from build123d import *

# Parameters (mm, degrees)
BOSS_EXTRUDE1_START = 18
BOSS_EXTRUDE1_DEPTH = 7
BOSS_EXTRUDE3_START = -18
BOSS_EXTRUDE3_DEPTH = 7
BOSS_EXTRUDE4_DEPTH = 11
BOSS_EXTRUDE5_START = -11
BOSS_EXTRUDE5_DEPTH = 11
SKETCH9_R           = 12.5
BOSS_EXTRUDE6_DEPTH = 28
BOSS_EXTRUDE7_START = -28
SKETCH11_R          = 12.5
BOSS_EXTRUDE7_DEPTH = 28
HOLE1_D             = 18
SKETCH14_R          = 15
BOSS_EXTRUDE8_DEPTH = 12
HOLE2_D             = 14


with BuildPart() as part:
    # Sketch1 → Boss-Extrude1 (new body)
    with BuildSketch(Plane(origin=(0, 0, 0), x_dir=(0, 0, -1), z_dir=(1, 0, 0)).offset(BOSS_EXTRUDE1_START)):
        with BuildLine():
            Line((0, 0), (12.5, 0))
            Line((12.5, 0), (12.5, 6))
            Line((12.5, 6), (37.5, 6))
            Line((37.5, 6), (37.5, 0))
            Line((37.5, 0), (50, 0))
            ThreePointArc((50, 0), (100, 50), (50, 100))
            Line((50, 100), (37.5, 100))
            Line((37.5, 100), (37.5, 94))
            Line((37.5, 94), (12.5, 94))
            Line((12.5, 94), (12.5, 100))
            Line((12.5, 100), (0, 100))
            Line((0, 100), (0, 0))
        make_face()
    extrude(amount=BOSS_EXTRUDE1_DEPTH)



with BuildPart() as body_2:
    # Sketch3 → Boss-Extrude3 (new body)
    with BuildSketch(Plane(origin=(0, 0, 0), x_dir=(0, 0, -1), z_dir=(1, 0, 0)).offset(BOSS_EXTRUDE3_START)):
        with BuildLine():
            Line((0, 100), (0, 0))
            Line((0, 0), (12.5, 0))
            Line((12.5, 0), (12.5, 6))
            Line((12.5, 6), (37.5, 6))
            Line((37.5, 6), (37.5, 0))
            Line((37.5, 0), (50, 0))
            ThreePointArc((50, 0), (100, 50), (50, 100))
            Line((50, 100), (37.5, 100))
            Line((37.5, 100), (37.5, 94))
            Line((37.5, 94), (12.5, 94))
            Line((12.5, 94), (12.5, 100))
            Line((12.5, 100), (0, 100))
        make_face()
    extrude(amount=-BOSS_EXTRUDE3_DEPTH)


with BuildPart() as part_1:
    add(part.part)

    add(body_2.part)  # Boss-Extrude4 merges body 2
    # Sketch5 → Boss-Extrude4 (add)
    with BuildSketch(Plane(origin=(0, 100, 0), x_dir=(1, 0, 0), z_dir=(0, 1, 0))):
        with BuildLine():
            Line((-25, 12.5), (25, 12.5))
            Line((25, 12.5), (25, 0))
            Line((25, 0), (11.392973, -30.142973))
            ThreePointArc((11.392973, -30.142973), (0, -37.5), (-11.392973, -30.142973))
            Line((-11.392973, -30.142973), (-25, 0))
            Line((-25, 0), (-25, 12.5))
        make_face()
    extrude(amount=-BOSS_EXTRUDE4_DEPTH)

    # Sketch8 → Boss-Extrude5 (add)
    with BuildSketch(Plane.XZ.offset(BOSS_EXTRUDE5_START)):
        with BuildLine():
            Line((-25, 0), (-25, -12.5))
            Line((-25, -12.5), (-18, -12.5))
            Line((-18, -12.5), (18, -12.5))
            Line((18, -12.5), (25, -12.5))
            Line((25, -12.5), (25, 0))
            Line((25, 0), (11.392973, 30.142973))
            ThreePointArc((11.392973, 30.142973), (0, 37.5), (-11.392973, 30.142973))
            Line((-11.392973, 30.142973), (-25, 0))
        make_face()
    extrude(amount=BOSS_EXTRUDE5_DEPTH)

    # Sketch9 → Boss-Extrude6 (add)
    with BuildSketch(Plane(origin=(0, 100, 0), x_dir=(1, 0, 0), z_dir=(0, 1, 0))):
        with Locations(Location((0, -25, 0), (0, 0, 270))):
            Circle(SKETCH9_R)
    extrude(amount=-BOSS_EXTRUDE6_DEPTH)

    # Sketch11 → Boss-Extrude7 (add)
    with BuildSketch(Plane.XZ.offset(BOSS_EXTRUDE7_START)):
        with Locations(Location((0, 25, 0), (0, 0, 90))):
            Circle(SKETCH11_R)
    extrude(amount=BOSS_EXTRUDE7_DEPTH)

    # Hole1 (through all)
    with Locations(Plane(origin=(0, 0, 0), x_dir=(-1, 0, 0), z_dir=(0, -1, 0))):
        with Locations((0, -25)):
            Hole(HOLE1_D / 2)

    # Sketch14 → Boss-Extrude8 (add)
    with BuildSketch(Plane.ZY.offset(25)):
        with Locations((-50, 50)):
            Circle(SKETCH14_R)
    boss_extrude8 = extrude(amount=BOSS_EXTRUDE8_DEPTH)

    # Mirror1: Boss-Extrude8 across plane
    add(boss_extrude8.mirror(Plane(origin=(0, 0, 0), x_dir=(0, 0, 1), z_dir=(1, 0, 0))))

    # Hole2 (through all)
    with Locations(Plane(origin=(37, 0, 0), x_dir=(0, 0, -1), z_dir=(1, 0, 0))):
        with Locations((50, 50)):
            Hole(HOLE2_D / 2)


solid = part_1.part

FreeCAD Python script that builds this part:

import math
import FreeCAD as App
import Part
import Sketcher
Q = App.Units.Quantity

doc = App.newDocument("Part")
params = doc.addObject("Spreadsheet::Sheet", "Params")
for row, (alias, value) in enumerate([
    ("sketch1_radius", "50 mm"),
    ("sketch1_width", "6 mm"),
    ("sketch1_height", "25 mm"),
    ("sketch1_height2", "12.5 mm"),
    ("pad1_length", "7 mm"),
    ("sketch2_radius", "50 mm"),
    ("sketch2_width", "6 mm"),
    ("sketch2_height", "25 mm"),
    ("sketch2_height2", "12.5 mm"),
    ("pad2_length", "7 mm"),
    ("sketch3_radius", "12.5 mm"),
    ("sketch3_width", "50 mm"),
    ("sketch3_height", "12.5 mm"),
    ("pad3_length", "11 mm"),
    ("sketch4_radius", "12.5 mm"),
    ("sketch4_width", "50 mm"),
    ("sketch4_height", "12.5 mm"),
    ("pad4_length", "11 mm"),
    ("sketch5_diameter", "25 mm"),
    ("pad5_length", "28 mm"),
    ("sketch6_diameter", "25 mm"),
    ("pad6_length", "28 mm"),
    ("sketch7_diameter", "18 mm"),
    ("hole_diameter", "18 mm"),
    ("sketch8_diameter", "30 mm"),
    ("pad7_length", "12 mm"),
    ("sketch9_diameter", "14 mm"),
    ("hole2_diameter", "14 mm"),
], start=1):
    params.set(f"A{row}", alias)
    params.set(f"B{row}", "=" + value)
    params.setAlias(f"B{row}", alias)

body = doc.addObject("PartDesign::Body", "Body")

# Sketch on YZ plane
sketch1 = body.newObject("Sketcher::SketchObject", "Sketch")
sketch1.AttachmentSupport = (doc.getObject("YZ_Plane"), [""])
sketch1.MapMode = "FlatFace"
sketch1.AttachmentOffset = App.Placement(App.Vector(0, 0, 18), App.Rotation())
sketch1.addGeometry([
    Part.LineSegment(App.Vector(0, 0, 0), App.Vector(0, -12, 0)),  # 0
    Part.LineSegment(App.Vector(0, -12, 0), App.Vector(6, -12, 0)),  # 1
    Part.LineSegment(App.Vector(6, -12, 0), App.Vector(6, -38, 0)),  # 2
    Part.LineSegment(App.Vector(6, -38, 0), App.Vector(0, -38, 0)),  # 3
    Part.LineSegment(App.Vector(0, -38, 0), App.Vector(0, -50, 0)),  # 4
    Part.ArcOfCircle(Part.Circle(App.Vector(50, -50, 0), App.Vector(0, 0, 1), 50), math.radians(180), math.radians(360)),  # 5
    Part.LineSegment(App.Vector(100, -50, 0), App.Vector(100, -38, 0)),  # 6
    Part.LineSegment(App.Vector(100, -38, 0), App.Vector(94, -38, 0)),  # 7
    Part.LineSegment(App.Vector(94, -38, 0), App.Vector(94, -12, 0)),  # 8
    Part.LineSegment(App.Vector(94, -12, 0), App.Vector(100, -12, 0)),  # 9
    Part.LineSegment(App.Vector(100, -12, 0), App.Vector(100, 0, 0)),  # 10
    Part.LineSegment(App.Vector(100, 0, 0), App.Vector(0, 0, 0)),  # 11
], False)
sketch1.addConstraint([
    Sketcher.Constraint("Coincident", 0, 2, 1, 1),
    Sketcher.Constraint("Coincident", 1, 2, 2, 1),
    Sketcher.Constraint("Coincident", 2, 2, 3, 1),
    Sketcher.Constraint("Coincident", 3, 2, 4, 1),
    Sketcher.Constraint("Tangent", 4, 2, 5, 1),
    Sketcher.Constraint("Tangent", 5, 2, 6, 1),
    Sketcher.Constraint("Coincident", 6, 2, 7, 1),
    Sketcher.Constraint("Coincident", 7, 2, 8, 1),
    Sketcher.Constraint("Coincident", 8, 2, 9, 1),
    Sketcher.Constraint("Coincident", 9, 2, 10, 1),
    Sketcher.Constraint("Coincident", 10, 2, 11, 1),
    Sketcher.Constraint("Coincident", 11, 2, 0, 1),
    Sketcher.Constraint("Vertical", 0),
    Sketcher.Constraint("Horizontal", 1),
    Sketcher.Constraint("Vertical", 2),
    Sketcher.Constraint("Horizontal", 3),
    Sketcher.Constraint("Vertical", 4),
    Sketcher.Constraint("Vertical", 6),
    Sketcher.Constraint("Horizontal", 7),
    Sketcher.Constraint("Vertical", 8),
    Sketcher.Constraint("Horizontal", 9),
    Sketcher.Constraint("Vertical", 10),
    Sketcher.Constraint("Horizontal", 11),
    Sketcher.Constraint("Coincident", 11, 2, -1, 1),
    Sketcher.Constraint("PointOnObject", 3, 2, -2),
    Sketcher.Constraint("Horizontal", 3, 2, 6, 2),
    Sketcher.Constraint("Horizontal", 1, 2, 8, 2),
    Sketcher.Constraint("Vertical", 6, 2, 9, 2),
    Sketcher.Constraint("Equal", 3, 7),
    Sketcher.Constraint("Equal", 0, 4),
    Sketcher.Constraint("Radius", 5, Q("50 mm")),
    Sketcher.Constraint("DistanceX", 1, 1, 1, 2, Q("6 mm")),
    Sketcher.Constraint("DistanceY", 2, 2, 2, 1, Q("25 mm")),
    Sketcher.Constraint("DistanceY", 0, 2, 0, 1, Q("12.5 mm")),
])
sketch1.setExpression("Constraints[30]", "Params.sketch1_radius")
sketch1.setExpression("Constraints[31]", "Params.sketch1_width")
sketch1.setExpression("Constraints[32]", "Params.sketch1_height")
sketch1.setExpression("Constraints[33]", "Params.sketch1_height2")
pad1 = body.newObject("PartDesign::Pad", "Pad")
pad1.Profile = sketch1
pad1.setExpression("Length", "Params.pad1_length")
body2 = doc.addObject("PartDesign::Body", "Body001")

# Sketch on YZ plane
sketch2 = body2.newObject("Sketcher::SketchObject", "Sketch001")
sketch2.AttachmentSupport = (doc.getObject("YZ_Plane001"), [""])
sketch2.MapMode = "FlatFace"
sketch2.AttachmentOffset = App.Placement(App.Vector(0, 0, -18), App.Rotation())
sketch2.addGeometry([
    Part.LineSegment(App.Vector(100, 0, 0), App.Vector(0, 0, 0)),  # 0
    Part.LineSegment(App.Vector(0, 0, 0), App.Vector(0, -12, 0)),  # 1
    Part.LineSegment(App.Vector(0, -12, 0), App.Vector(6, -12, 0)),  # 2
    Part.LineSegment(App.Vector(6, -12, 0), App.Vector(6, -38, 0)),  # 3
    Part.LineSegment(App.Vector(6, -38, 0), App.Vector(0, -38, 0)),  # 4
    Part.LineSegment(App.Vector(0, -38, 0), App.Vector(0, -50, 0)),  # 5
    Part.ArcOfCircle(Part.Circle(App.Vector(50, -50, 0), App.Vector(0, 0, 1), 50), math.radians(180), math.radians(360)),  # 6
    Part.LineSegment(App.Vector(100, -50, 0), App.Vector(100, -38, 0)),  # 7
    Part.LineSegment(App.Vector(100, -38, 0), App.Vector(94, -38, 0)),  # 8
    Part.LineSegment(App.Vector(94, -38, 0), App.Vector(94, -12, 0)),  # 9
    Part.LineSegment(App.Vector(94, -12, 0), App.Vector(100, -12, 0)),  # 10
    Part.LineSegment(App.Vector(100, -12, 0), App.Vector(100, 0, 0)),  # 11
], False)
sketch2.addConstraint([
    Sketcher.Constraint("Coincident", 0, 2, 1, 1),
    Sketcher.Constraint("Coincident", 1, 2, 2, 1),
    Sketcher.Constraint("Coincident", 2, 2, 3, 1),
    Sketcher.Constraint("Coincident", 3, 2, 4, 1),
    Sketcher.Constraint("Coincident", 4, 2, 5, 1),
    Sketcher.Constraint("Tangent", 5, 2, 6, 1),
    Sketcher.Constraint("Tangent", 6, 2, 7, 1),
    Sketcher.Constraint("Coincident", 7, 2, 8, 1),
    Sketcher.Constraint("Coincident", 8, 2, 9, 1),
    Sketcher.Constraint("Coincident", 9, 2, 10, 1),
    Sketcher.Constraint("Coincident", 10, 2, 11, 1),
    Sketcher.Constraint("Coincident", 11, 2, 0, 1),
    Sketcher.Constraint("Horizontal", 0),
    Sketcher.Constraint("Vertical", 1),
    Sketcher.Constraint("Horizontal", 2),
    Sketcher.Constraint("Vertical", 3),
    Sketcher.Constraint("Horizontal", 4),
    Sketcher.Constraint("Vertical", 5),
    Sketcher.Constraint("Vertical", 7),
    Sketcher.Constraint("Horizontal", 8),
    Sketcher.Constraint("Vertical", 9),
    Sketcher.Constraint("Horizontal", 10),
    Sketcher.Constraint("Vertical", 11),
    Sketcher.Constraint("Coincident", 0, 2, -1, 1),
    Sketcher.Constraint("PointOnObject", 4, 2, -2),
    Sketcher.Constraint("Horizontal", 4, 2, 7, 2),
    Sketcher.Constraint("Horizontal", 2, 2, 9, 2),
    Sketcher.Constraint("Vertical", 7, 2, 10, 2),
    Sketcher.Constraint("Equal", 4, 8),
    Sketcher.Constraint("Equal", 1, 5),
    Sketcher.Constraint("Radius", 6, Q("50 mm")),
    Sketcher.Constraint("DistanceX", 2, 1, 2, 2, Q("6 mm")),
    Sketcher.Constraint("DistanceY", 3, 2, 3, 1, Q("25 mm")),
    Sketcher.Constraint("DistanceY", 1, 2, 1, 1, Q("12.5 mm")),
])
sketch2.setExpression("Constraints[30]", "Params.sketch2_radius")
sketch2.setExpression("Constraints[31]", "Params.sketch2_width")
sketch2.setExpression("Constraints[32]", "Params.sketch2_height")
sketch2.setExpression("Constraints[33]", "Params.sketch2_height2")
pad2 = body2.newObject("PartDesign::Pad", "Pad001")
pad2.Profile = sketch2
pad2.setExpression("Length", "Params.pad2_length")
pad2.Reversed = True
body.AllowCompound = True
doc.recompute()

boolean = body.newObject("PartDesign::Boolean", "Boolean")
boolean.Type = "Fuse"
boolean.addObjects([body2])

# Sketch on XZ plane
sketch3 = body.newObject("Sketcher::SketchObject", "Sketch002")
sketch3.AttachmentSupport = (doc.getObject("XZ_Plane"), [""])
sketch3.MapMode = "FlatFace"
sketch3.AttachmentOffset = App.Placement(App.Vector(0, 0, -100), App.Rotation())
sketch3.addGeometry([
    Part.LineSegment(App.Vector(25, -12, 0), App.Vector(-25, -12, 0)),  # 0
    Part.LineSegment(App.Vector(-25, -12, 0), App.Vector(-25, 0, 0)),  # 1
    Part.LineSegment(App.Vector(-25, 0, 0), App.Vector(-11, 30, 0)),  # 2
    Part.ArcOfCircle(Part.Circle(App.Vector(0, 25, 0), App.Vector(0, 0, 1), 13), math.radians(24), math.radians(156)),  # 3
    Part.LineSegment(App.Vector(11, 30, 0), App.Vector(25, 0, 0)),  # 4
    Part.LineSegment(App.Vector(25, 0, 0), App.Vector(25, -12, 0)),  # 5
], False)
sketch3.addConstraint([
    Sketcher.Constraint("Coincident", 0, 2, 1, 1),
    Sketcher.Constraint("Coincident", 1, 2, 2, 1),
    Sketcher.Constraint("Tangent", 2, 2, 3, 2),
    Sketcher.Constraint("Tangent", 3, 1, 4, 1),
    Sketcher.Constraint("Coincident", 4, 2, 5, 1),
    Sketcher.Constraint("Coincident", 5, 2, 0, 1),
    Sketcher.Constraint("Horizontal", 0),
    Sketcher.Constraint("Vertical", 1),
    Sketcher.Constraint("Vertical", 5),
    Sketcher.Constraint("Symmetric", 1, 2, 4, 2, -1, 1),
    Sketcher.Constraint("Symmetric", 2, 2, 3, 1, -2),
    Sketcher.Constraint("Radius", 3, Q("12.5 mm")),
    Sketcher.Constraint("DistanceX", 0, 2, 0, 1, Q("50 mm")),
    Sketcher.Constraint("DistanceY", 1, 1, 1, 2, Q("12.5 mm")),
    Sketcher.Constraint("DistanceY", -1, 1, 3, 3, Q("25 mm")),
])
sketch3.setExpression("Constraints[11]", "Params.sketch3_radius")
sketch3.setExpression("Constraints[12]", "Params.sketch3_width")
sketch3.setExpression("Constraints[13]", "Params.sketch3_height")
pad3 = body.newObject("PartDesign::Pad", "Pad002")
pad3.Profile = sketch3
pad3.setExpression("Length", "Params.pad3_length")

# Sketch on XZ plane
sketch4 = body.newObject("Sketcher::SketchObject", "Sketch003")
sketch4.AttachmentSupport = (doc.getObject("XZ_Plane"), [""])
sketch4.MapMode = "FlatFace"
sketch4.AttachmentOffset = App.Placement(App.Vector(0, 0, -11), App.Rotation())
sketch4.addGeometry([
    Part.LineSegment(App.Vector(-25, 0, 0), App.Vector(-25, -12, 0)),  # 0
    Part.LineSegment(App.Vector(-25, -12, 0), App.Vector(25, -12, 0)),  # 1
    Part.LineSegment(App.Vector(25, -12, 0), App.Vector(25, 0, 0)),  # 2
    Part.LineSegment(App.Vector(25, 0, 0), App.Vector(11, 30, 0)),  # 3
    Part.ArcOfCircle(Part.Circle(App.Vector(0, 25, 0), App.Vector(0, 0, 1), 13), math.radians(24), math.radians(156)),  # 4
    Part.LineSegment(App.Vector(-11, 30, 0), App.Vector(-25, 0, 0)),  # 5
], False)
sketch4.addConstraint([
    Sketcher.Constraint("Coincident", 0, 2, 1, 1),
    Sketcher.Constraint("Coincident", 1, 2, 2, 1),
    Sketcher.Constraint("Coincident", 2, 2, 3, 1),
    Sketcher.Constraint("Tangent", 3, 2, 4, 1),
    Sketcher.Constraint("Tangent", 4, 2, 5, 1),
    Sketcher.Constraint("Coincident", 5, 2, 0, 1),
    Sketcher.Constraint("Vertical", 0),
    Sketcher.Constraint("Horizontal", 1),
    Sketcher.Constraint("Vertical", 2),
    Sketcher.Constraint("Symmetric", 2, 2, 5, 2, -1, 1),
    Sketcher.Constraint("Symmetric", 3, 2, 4, 2, -2),
    Sketcher.Constraint("Radius", 4, Q("12.5 mm")),
    Sketcher.Constraint("DistanceX", 1, 1, 1, 2, Q("50 mm")),
    Sketcher.Constraint("DistanceY", 0, 2, 0, 1, Q("12.5 mm")),
    Sketcher.Constraint("DistanceY", -1, 1, 4, 3, Q("25 mm")),
])
sketch4.setExpression("Constraints[11]", "Params.sketch4_radius")
sketch4.setExpression("Constraints[12]", "Params.sketch4_width")
sketch4.setExpression("Constraints[13]", "Params.sketch4_height")
pad4 = body.newObject("PartDesign::Pad", "Pad003")
pad4.Profile = sketch4
pad4.setExpression("Length", "Params.pad4_length")

# Sketch on XZ plane
sketch5 = body.newObject("Sketcher::SketchObject", "Sketch004")
sketch5.AttachmentSupport = (doc.getObject("XZ_Plane"), [""])
sketch5.MapMode = "FlatFace"
sketch5.AttachmentOffset = App.Placement(App.Vector(0, 0, -100), App.Rotation())
sketch5.addGeometry(Part.Circle(App.Vector(0, 25, 0), App.Vector(0, 0, 1), 12), False)
sketch5.addConstraint([
    Sketcher.Constraint("PointOnObject", 0, 3, -2),
    Sketcher.Constraint("Diameter", 0, Q("25 mm")),
    Sketcher.Constraint("DistanceY", -1, 1, 0, 3, Q("25 mm")),
])
sketch5.setExpression("Constraints[1]", "Params.sketch5_diameter")
pad5 = body.newObject("PartDesign::Pad", "Pad004")
pad5.Profile = sketch5
pad5.setExpression("Length", "Params.pad5_length")

# Sketch on XZ plane
sketch6 = body.newObject("Sketcher::SketchObject", "Sketch005")
sketch6.AttachmentSupport = (doc.getObject("XZ_Plane"), [""])
sketch6.MapMode = "FlatFace"
sketch6.AttachmentOffset = App.Placement(App.Vector(0, 0, -28), App.Rotation())
sketch6.addGeometry(Part.Circle(App.Vector(0, 25, 0), App.Vector(0, 0, 1), 12), False)
sketch6.addConstraint([
    Sketcher.Constraint("PointOnObject", 0, 3, -2),
    Sketcher.Constraint("Diameter", 0, Q("25 mm")),
    Sketcher.Constraint("DistanceY", -1, 1, 0, 3, Q("25 mm")),
])
sketch6.setExpression("Constraints[1]", "Params.sketch6_diameter")
pad6 = body.newObject("PartDesign::Pad", "Pad005")
pad6.Profile = sketch6
pad6.setExpression("Length", "Params.pad6_length")

# Sketch on XZ plane
sketch7 = body.newObject("Sketcher::SketchObject", "Sketch006")
sketch7.AttachmentSupport = (doc.getObject("XZ_Plane"), [""])
sketch7.MapMode = "FlatFace"
sketch7.addGeometry(Part.Circle(App.Vector(0, 25, 0), App.Vector(0, 0, 1), 9), False)
sketch7.addConstraint([
    Sketcher.Constraint("PointOnObject", 0, 3, -2),
    Sketcher.Constraint("Diameter", 0, Q("18 mm")),
    Sketcher.Constraint("DistanceY", -1, 1, 0, 3, Q("25 mm")),
])
sketch7.setExpression("Constraints[1]", "Params.sketch7_diameter")
doc.recompute()
hole = body.newObject("PartDesign::Hole", "Hole")
hole.Profile = sketch7
hole.ThreadType = "None"
hole.setExpression("Diameter", "Params.hole_diameter")
hole.DepthType = "ThroughAll"

# Sketch on YZ plane
sketch8 = body.newObject("Sketcher::SketchObject", "Sketch007")
sketch8.AttachmentSupport = (doc.getObject("YZ_Plane"), [""])
sketch8.MapMode = "FlatFace"
sketch8.AttachmentOffset = App.Placement(App.Vector(0, 0, -25), App.Rotation())
sketch8.addGeometry(Part.Circle(App.Vector(50, -50, 0), App.Vector(0, 0, 1), 15), False)
sketch8.addConstraint([
    Sketcher.Constraint("Diameter", 0, Q("30 mm")),
    Sketcher.Constraint("DistanceX", -1, 1, 0, 3, Q("50 mm")),
    Sketcher.Constraint("DistanceY", 0, 3, -1, 1, Q("50 mm")),
])
sketch8.setExpression("Constraints[0]", "Params.sketch8_diameter")
pad7 = body.newObject("PartDesign::Pad", "Pad006")
pad7.Profile = sketch8
pad7.setExpression("Length", "Params.pad7_length")
pad7.Reversed = True
doc.recompute()

mirrored = body.newObject("PartDesign::Mirrored", "Mirrored")
mirrored.Originals = [pad7]
mirrored.MirrorPlane = (doc.getObject("YZ_Plane"), [""])
body.Tip = mirrored

# Sketch on YZ plane
sketch9 = body.newObject("Sketcher::SketchObject", "Sketch008")
sketch9.AttachmentSupport = (doc.getObject("YZ_Plane"), [""])
sketch9.MapMode = "FlatFace"
sketch9.AttachmentOffset = App.Placement(App.Vector(0, 0, 37), App.Rotation())
sketch9.addGeometry(Part.Circle(App.Vector(50, -50, 0), App.Vector(0, 0, 1), 7), False)
sketch9.addConstraint([
    Sketcher.Constraint("Diameter", 0, Q("14 mm")),
    Sketcher.Constraint("DistanceX", -1, 1, 0, 3, Q("50 mm")),
    Sketcher.Constraint("DistanceY", 0, 3, -1, 1, Q("50 mm")),
])
sketch9.setExpression("Constraints[0]", "Params.sketch9_diameter")
doc.recompute()
hole2 = body.newObject("PartDesign::Hole", "Hole001")
hole2.Profile = sketch9
hole2.ThreadType = "None"
hole2.setExpression("Diameter", "Params.hole2_diameter")
hole2.DepthType = "ThroughAll"

doc.recompute()
